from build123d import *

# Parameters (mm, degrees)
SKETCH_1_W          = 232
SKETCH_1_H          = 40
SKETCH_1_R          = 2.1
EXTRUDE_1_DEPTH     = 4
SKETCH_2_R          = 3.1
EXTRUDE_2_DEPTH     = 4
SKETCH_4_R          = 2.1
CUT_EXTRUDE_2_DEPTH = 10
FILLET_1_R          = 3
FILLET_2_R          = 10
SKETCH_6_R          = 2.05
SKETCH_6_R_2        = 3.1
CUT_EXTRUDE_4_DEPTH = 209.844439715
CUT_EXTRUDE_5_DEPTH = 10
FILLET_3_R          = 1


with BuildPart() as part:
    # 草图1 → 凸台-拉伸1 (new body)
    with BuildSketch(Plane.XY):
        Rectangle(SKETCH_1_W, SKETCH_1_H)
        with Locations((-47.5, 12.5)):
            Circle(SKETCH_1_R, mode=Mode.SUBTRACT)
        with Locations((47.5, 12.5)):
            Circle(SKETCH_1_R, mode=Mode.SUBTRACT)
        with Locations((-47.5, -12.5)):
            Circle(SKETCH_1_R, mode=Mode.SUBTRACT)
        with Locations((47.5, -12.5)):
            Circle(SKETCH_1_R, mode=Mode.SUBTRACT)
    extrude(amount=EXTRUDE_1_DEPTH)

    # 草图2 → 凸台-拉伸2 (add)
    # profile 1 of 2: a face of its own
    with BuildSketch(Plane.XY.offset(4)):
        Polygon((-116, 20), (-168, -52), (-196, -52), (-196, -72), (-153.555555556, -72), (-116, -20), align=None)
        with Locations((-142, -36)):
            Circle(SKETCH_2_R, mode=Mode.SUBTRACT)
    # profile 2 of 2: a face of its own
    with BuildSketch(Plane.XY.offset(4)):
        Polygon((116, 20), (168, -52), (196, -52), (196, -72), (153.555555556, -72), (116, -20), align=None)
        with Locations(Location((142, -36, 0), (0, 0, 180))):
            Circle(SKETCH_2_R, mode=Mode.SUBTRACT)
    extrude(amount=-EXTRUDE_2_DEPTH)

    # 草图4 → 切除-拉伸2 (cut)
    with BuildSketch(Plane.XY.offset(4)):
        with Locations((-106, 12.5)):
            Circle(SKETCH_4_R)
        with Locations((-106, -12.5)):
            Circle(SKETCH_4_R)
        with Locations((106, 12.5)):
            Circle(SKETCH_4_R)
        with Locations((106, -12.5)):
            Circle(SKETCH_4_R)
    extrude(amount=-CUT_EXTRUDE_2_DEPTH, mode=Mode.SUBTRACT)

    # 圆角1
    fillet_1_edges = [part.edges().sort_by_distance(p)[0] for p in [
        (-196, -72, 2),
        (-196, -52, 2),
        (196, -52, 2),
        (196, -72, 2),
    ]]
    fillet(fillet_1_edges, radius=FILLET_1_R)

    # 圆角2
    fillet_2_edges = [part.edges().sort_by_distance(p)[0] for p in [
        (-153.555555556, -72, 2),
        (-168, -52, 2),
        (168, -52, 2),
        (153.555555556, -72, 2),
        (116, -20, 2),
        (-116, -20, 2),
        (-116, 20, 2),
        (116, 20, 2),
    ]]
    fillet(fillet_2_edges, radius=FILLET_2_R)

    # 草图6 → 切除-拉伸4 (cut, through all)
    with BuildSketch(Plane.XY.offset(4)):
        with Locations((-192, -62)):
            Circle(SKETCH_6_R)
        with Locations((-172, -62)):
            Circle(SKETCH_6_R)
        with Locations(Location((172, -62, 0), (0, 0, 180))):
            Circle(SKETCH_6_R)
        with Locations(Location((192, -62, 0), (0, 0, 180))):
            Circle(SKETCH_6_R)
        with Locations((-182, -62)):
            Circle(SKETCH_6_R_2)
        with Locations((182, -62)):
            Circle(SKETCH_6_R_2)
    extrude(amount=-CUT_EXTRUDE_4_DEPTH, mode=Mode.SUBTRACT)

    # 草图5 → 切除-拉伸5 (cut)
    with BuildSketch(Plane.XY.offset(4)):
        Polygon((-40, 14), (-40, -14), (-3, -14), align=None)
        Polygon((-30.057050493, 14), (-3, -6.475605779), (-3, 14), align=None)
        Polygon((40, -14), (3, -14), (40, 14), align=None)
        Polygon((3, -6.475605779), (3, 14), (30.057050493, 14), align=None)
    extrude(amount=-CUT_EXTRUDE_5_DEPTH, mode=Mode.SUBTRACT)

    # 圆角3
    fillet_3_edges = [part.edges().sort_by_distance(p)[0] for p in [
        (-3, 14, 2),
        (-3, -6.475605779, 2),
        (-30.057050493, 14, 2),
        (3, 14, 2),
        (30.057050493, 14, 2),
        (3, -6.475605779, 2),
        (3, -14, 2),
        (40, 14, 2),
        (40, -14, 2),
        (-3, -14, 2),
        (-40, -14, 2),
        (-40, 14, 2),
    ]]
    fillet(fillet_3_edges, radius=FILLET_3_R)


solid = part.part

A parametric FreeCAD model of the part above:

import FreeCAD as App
import Part
import Sketcher
from FreeCAD import Vector


def edges_at(feature, points):
    """Names of the edges that pass closest to the given points."""
    edges = feature.Shape.Edges
    near = lambda p: min(range(len(edges)), key=lambda i: edges[i].distToShape(Part.Vertex(*p))[0])
    return sorted({f"Edge{near(p) + 1}" for p in points})

doc = App.newDocument("Part")
params = doc.addObject("Spreadsheet::Sheet", "Params")
for row, (alias, value) in enumerate([
    ("sketch1_diameter", "4.2 mm"),
    ("sketch1_width", "232 mm"),
    ("sketch1_height", "40 mm"),
    ("pad1_length", "4 mm"),
    ("sketch2_diameter", "6.2 mm"),
    ("sketch2_width", "28 mm"),
    ("sketch2_height", "20 mm"),
    ("sketch2_height2", "40 mm"),
    ("pad2_length", "4 mm"),
    ("sketch3_diameter", "4.2 mm"),
    ("pocket1_length", "10 mm"),
    ("fillet_radius", "3 mm"),
    ("fillet2_radius", "10 mm"),
    ("sketch4_diameter", "4.1 mm"),
    ("sketch4_diameter2", "6.2 mm"),
    ("sketch5_width", "37 mm"),
    ("sketch5_height", "28 mm"),
    ("pocket3_length", "10 mm"),
    ("fillet3_radius", "1 mm"),
], start=1):
    params.set(f"A{row}", alias)
    params.set(f"B{row}", "=" + value)
    params.setAlias(f"B{row}", alias)

body = doc.addObject("PartDesign::Body", "Body")

# Sketch on XY plane
sketch1 = body.newObject("Sketcher::SketchObject", "Sketch")
sketch1.AttachmentSupport = (doc.getObject("XY_Plane"), [""])
sketch1.MapMode = "FlatFace"
sketch1.addGeometry(Part.LineSegment(Vector(-116, 20, 0), Vector(-116, -20, 0)), False)
sketch1.addGeometry(Part.LineSegment(Vector(-116, -20, 0), Vector(116, -20, 0)), False)
sketch1.addGeometry(Part.LineSegment(Vector(116, -20, 0), Vector(116, 20, 0)), False)
sketch1.addGeometry(Part.LineSegment(Vector(116, 20, 0), Vector(-116, 20, 0)), False)
sketch1.addGeometry(Part.Circle(Vector(-47.5, -12.5, 0), Vector(0, 0, 1), 2.1), False)
sketch1.addGeometry(Part.Circle(Vector(47.5, -12.5, 0), Vector(0, 0, 1), 2.1), False)
sketch1.addGeometry(Part.Circle(Vector(-47.5, 12.5, 0), Vector(0, 0, 1), 2.1), False)
sketch1.addGeometry(Part.Circle(Vector(47.5, 12.5, 0), Vector(0, 0, 1), 2.1), False)
sketch1.addConstraint(Sketcher.Constraint("Coincident", 0, 2, 1, 1))
sketch1.addConstraint(Sketcher.Constraint("Coincident", 1, 2, 2, 1))
sketch1.addConstraint(Sketcher.Constraint("Coincident", 2, 2, 3, 1))
sketch1.addConstraint(Sketcher.Constraint("Coincident", 3, 2, 0, 1))
sketch1.addConstraint(Sketcher.Constraint("Vertical", 0))
sketch1.addConstraint(Sketcher.Constraint("Horizontal", 1))
sketch1.addConstraint(Sketcher.Constraint("Vertical", 2))
sketch1.addConstraint(Sketcher.Constraint("Horizontal", 3))
sketch1.addConstraint(Sketcher.Constraint("Equal", 4, 5))
sketch1.addConstraint(Sketcher.Constraint("Equal", 5, 6))
sketch1.addConstraint(Sketcher.Constraint("Equal", 6, 7))
sketch1.addConstraint(Sketcher.Constraint("Symmetric", 5, 3, 6, 3, -1, 1))
sketch1.addConstraint(Sketcher.Constraint("Symmetric", 4, 3, 7, 3, -1, 1))
sketch1.addConstraint(Sketcher.Constraint("Symmetric", 0, 2, 2, 2, -1, 1))
sketch1.addConstraint(Sketcher.Constraint("Symmetric", 4, 3, 5, 3, -2))
sketch1.addConstraint(Sketcher.Constraint("Diameter", 4, 4.2))
sketch1.addConstraint(Sketcher.Constraint("DistanceX", 1, 1, 1, 2, 232.0))
sketch1.addConstraint(Sketcher.Constraint("DistanceY", 0, 2, 0, 1, 40.0))
sketch1.addConstraint(Sketcher.Constraint("DistanceX", 4, 3, 5, 3, 95.0))
sketch1.addConstraint(Sketcher.Constraint("DistanceY", 4, 3, 6, 3, 25.0))
sketch1.setExpression("Constraints[15]", "Params.sketch1_diameter")
sketch1.setExpression("Constraints[16]", "Params.sketch1_width")
sketch1.setExpression("Constraints[17]", "Params.sketch1_height")
pad1 = body.newObject("PartDesign::Pad", "Pad")
pad1.Profile = sketch1
pad1.setExpression("Length", "Params.pad1_length")

# Sketch on XY plane
sketch2 = body.newObject("Sketcher::SketchObject", "Sketch001")
sketch2.AttachmentSupport = (doc.getObject("XY_Plane"), [""])
sketch2.MapMode = "FlatFace"
sketch2.AttachmentOffset = App.Placement(Vector(0, 0, 4), App.Rotation())
sketch2.addGeometry(Part.LineSegment(Vector(-116, 20, 0), Vector(-168, -52, 0)), False)
sketch2.addGeometry(Part.LineSegment(Vector(-168, -52, 0), Vector(-196, -52, 0)), False)
sketch2.addGeometry(Part.LineSegment(Vector(-196, -52, 0), Vector(-196, -72, 0)), False)
sketch2.addGeometry(Part.LineSegment(Vector(-196, -72, 0), Vector(-153.555556, -72, 0)), False)
sketch2.addGeometry(Part.LineSegment(Vector(-153.555556, -72, 0), Vector(-116, -20, 0)), False)
sketch2.addGeometry(Part.LineSegment(Vector(-116, -20, 0), Vector(-116, 20, 0)), False)
sketch2.addGeometry(Part.Circle(Vector(-142, -36, 0), Vector(0, 0, 1), 3.1), False)
sketch2.addGeometry(Part.LineSegment(Vector(168, -52, 0), Vector(116, 20, 0)), False)
sketch2.addGeometry(Part.LineSegment(Vector(116, 20, 0), Vector(116, -20, 0)), False)
sketch2.addGeometry(Part.LineSegment(Vector(116, -20, 0), Vector(153.555556, -72, 0)), False)
sketch2.addGeometry(Part.LineSegment(Vector(153.555556, -72, 0), Vector(196, -72, 0)), False)
sketch2.addGeometry(Part.LineSegment(Vector(196, -72, 0), Vector(196, -52, 0)), False)
sketch2.addGeometry(Part.LineSegment(Vector(196, -52, 0), Vector(168, -52, 0)), False)
sketch2.addGeometry(Part.Circle(Vector(142, -36, 0), Vector(0, 0, 1), 3.1), False)
sketch2.addConstraint(Sketcher.Constraint("Coincident", 0, 2, 1, 1))
sketch2.addConstraint(Sketcher.Constraint("Coincident", 1, 2, 2, 1))
sketch2.addConstraint(Sketcher.Constraint("Coincident", 2, 2, 3, 1))
sketch2.addConstraint(Sketcher.Constraint("Coincident", 3, 2, 4, 1))
sketch2.addConstraint(Sketcher.Constraint("Coincident", 4, 2, 5, 1))
sketch2.addConstraint(Sketcher.Constraint("Coincident", 5, 2, 0, 1))
sketch2.addConstraint(Sketcher.Constraint("Coincident", 7, 2, 8, 1))
sketch2.addConstraint(Sketcher.Constraint("Coincident", 8, 2, 9, 1))
sketch2.addConstraint(Sketcher.Constraint("Coincident", 9, 2, 10, 1))
sketch2.addConstraint(Sketcher.Constraint("Coincident", 10, 2, 11, 1))
sketch2.addConstraint(Sketcher.Constraint("Coincident", 11, 2, 12, 1))
sketch2.addConstraint(Sketcher.Constraint("Coincident", 12, 2, 7, 1))
sketch2.addConstraint(Sketcher.Constraint("Horizontal", 1))
sketch2.addConstraint(Sketcher.Constraint("Vertical", 2))
sketch2.addConstraint(Sketcher.Constraint("Horizontal", 3))
sketch2.addConstraint(Sketcher.Constraint("Vertical", 5))
sketch2.addConstraint(Sketcher.Constraint("Vertical", 8))
sketch2.addConstraint(Sketcher.Constraint("Horizontal", 10))
sketch2.addConstraint(Sketcher.Constraint("Vertical", 11))
sketch2.addConstraint(Sketcher.Constraint("Horizontal", 12))
sketch2.addConstraint(Sketcher.Constraint("Equal", 6, 13))
sketch2.addConstraint(Sketcher.Constraint("Symmetric", 4, 2, 7, 2, -1, 1))
sketch2.addConstraint(Sketcher.Constraint("Symmetric", 6, 3, 13, 3, -2))
sketch2.addConstraint(Sketcher.Constraint("Symmetric", 3, 2, 9, 2, -2))
sketch2.addConstraint(Sketcher.Constraint("Symmetric", 1, 2, 11, 2, -2))
sketch2.addConstraint(Sketcher.Constraint("Parallel", 0, 4))
sketch2.addConstraint(Sketcher.Constraint("Parallel", 7, 9))
sketch2.addConstraint(Sketcher.Constraint("Horizontal", 5, 2, 7, 2))
sketch2.addConstraint(Sketcher.Constraint("Horizontal", 4, 2, 8, 2))
sketch2.addConstraint(Sketcher.Constraint("Diameter", 6, 6.2))
sketch2.addConstraint(Sketcher.Constraint("DistanceX", 1, 2, 1, 1, 28.0))
sketch2.addConstraint(Sketcher.Constraint("DistanceY", 2, 2, 2, 1, 20.0))
sketch2.addConstraint(Sketcher.Constraint("DistanceY", 5, 1, 5, 2, 40.0))
sketch2.addConstraint(Sketcher.Constraint("DistanceX", 6, 3, -1, 1, 142.0))
sketch2.addConstraint(Sketcher.Constraint("DistanceY", 6, 3, -1, 1, 36.0))
sketch2.addConstraint(Sketcher.Constraint("DistanceX", 0, 2, -1, 1, 168.0))
sketch2.addConstraint(Sketcher.Constraint("DistanceY", 0, 2, -1, 1, 52.0))
sketch2.addConstraint(Sketcher.Constraint("DistanceX", 4, 2, -1, 1, 116.0))
sketch2.setExpression("Constraints[29]", "Params.sketch2_diameter")
sketch2.setExpression("Constraints[30]", "Params.sketch2_width")
sketch2.setExpression("Constraints[31]", "Params.sketch2_height")
sketch2.setExpression("Constraints[32]", "Params.sketch2_height2")
pad2 = body.newObject("PartDesign::Pad", "Pad001")
pad2.Profile = sketch2
pad2.setExpression("Length", "Params.pad2_length")
pad2.Reversed = True

# Sketch on XY plane
sketch3 = body.newObject("Sketcher::SketchObject", "Sketch002")
sketch3.AttachmentSupport = (doc.getObject("XY_Plane"), [""])
sketch3.MapMode = "FlatFace"
sketch3.AttachmentOffset = App.Placement(Vector(0, 0, 4), App.Rotation())
sketch3.addGeometry(Part.Circle(Vector(-106, 12.5, 0), Vector(0, 0, 1), 2.1), False)
sketch3.addGeometry(Part.Circle(Vector(-106, -12.5, 0), Vector(0, 0, 1), 2.1), False)
sketch3.addGeometry(Part.Circle(Vector(106, 12.5, 0), Vector(0, 0, 1), 2.1), False)
sketch3.addGeometry(Part.Circle(Vector(106, -12.5, 0), Vector(0, 0, 1), 2.1), False)
sketch3.addConstraint(Sketcher.Constraint("Equal", 0, 1))
sketch3.addConstraint(Sketcher.Constraint("Equal", 1, 2))
sketch3.addConstraint(Sketcher.Constraint("Equal", 2, 3))
sketch3.addConstraint(Sketcher.Constraint("Symmetric", 1, 3, 2, 3, -1, 1))
sketch3.addConstraint(Sketcher.Constraint("Symmetric", 0, 3, 3, 3, -1, 1))
sketch3.addConstraint(Sketcher.Constraint("Symmetric", 0, 3, 2, 3, -2))
sketch3.addConstraint(Sketcher.Constraint("Diameter", 0, 4.2))
sketch3.addConstraint(Sketcher.Constraint("DistanceX", 0, 3, -1, 1, 106.0))
sketch3.addConstraint(Sketcher.Constraint("DistanceY", 1, 3, 0, 3, 25.0))
sketch3.setExpression("Constraints[6]", "Params.sketch3_diameter")
pocket1 = body.newObject("PartDesign::Pocket", "Pocket")
pocket1.Profile = sketch3
pocket1.setExpression("Length", "Params.pocket1_length")
doc.recompute()

fillet = body.newObject("PartDesign::Fillet", "Fillet")
fillet.Base = (pocket1, edges_at(pocket1, [
    (-196, -72, 2),
    (-196, -52, 2),
    (196, -52, 2),
    (196, -72, 2),
]))
fillet.setExpression("Radius", "Params.fillet_radius")
doc.recompute()

fillet2 = body.newObject("PartDesign::Fillet", "Fillet001")
fillet2.Base = (fillet, edges_at(fillet, [
    (-153.556, -72, 2),
    (-168, -52, 2),
    (168, -52, 2),
    (153.556, -72, 2),
    (116, -20, 2),
    (-116, -20, 2),
    (-116, 20, 2),
    (116, 20, 2),
]))
fillet2.setExpression("Radius", "Params.fillet2_radius")

# Sketch on XY plane
sketch4 = body.newObject("Sketcher::SketchObject", "Sketch003")
sketch4.AttachmentSupport = (doc.getObject("XY_Plane"), [""])
sketch4.MapMode = "FlatFace"
sketch4.AttachmentOffset = App.Placement(Vector(0, 0, 4), App.Rotation())
sketch4.addGeometry(Part.Circle(Vector(-192, -62, 0), Vector(0, 0, 1), 2.05), False)
sketch4.addGeometry(Part.Circle(Vector(-172, -62, 0), Vector(0, 0, 1), 2.05), False)
sketch4.addGeometry(Part.Circle(Vector(172, -62, 0), Vector(0, 0, 1), 2.05), False)
sketch4.addGeometry(Part.Circle(Vector(192, -62, 0), Vector(0, 0, 1), 2.05), False)
sketch4.addGeometry(Part.Circle(Vector(-182, -62, 0), Vector(0, 0, 1), 3.1), False)
sketch4.addGeometry(Part.Circle(Vector(182, -62, 0), Vector(0, 0, 1), 3.1), False)
sketch4.addConstraint(Sketcher.Constraint("Equal", 0, 1))
sketch4.addConstraint(Sketcher.Constraint("Equal", 1, 2))
sketch4.addConstraint(Sketcher.Constraint("Equal", 2, 3))
sketch4.addConstraint(Sketcher.Constraint("Equal", 4, 5))
sketch4.addConstraint(Sketcher.Constraint("Symmetric", 1, 3, 2, 3, -2))
sketch4.addConstraint(Sketcher.Constraint("Symmetric", 0, 3, 3, 3, -2))
sketch4.addConstraint(Sketcher.Constraint("Symmetric", 4, 3, 5, 3, -2))
sketch4.addConstraint(Sketcher.Constraint("Horizontal", 0, 3, 1, 3))
sketch4.addConstraint(Sketcher.Constraint("Horizontal", 3, 3, 4, 3))
sketch4.addConstraint(Sketcher.Constraint("Diameter", 0, 4.1))
sketch4.addConstraint(Sketcher.Constraint("Diameter", 4, 6.2))
sketch4.addConstraint(Sketcher.Constraint("DistanceX", 0, 3, -1, 1, 192.0))
sketch4.addConstraint(Sketcher.Constraint("DistanceY", 0, 3, -1, 1, 62.0))
sketch4.addConstraint(Sketcher.Constraint("DistanceX", 1, 3, -1, 1, 172.0))
sketch4.addConstraint(Sketcher.Constraint("DistanceX", 4, 3, -1, 1, 182.0))
sketch4.setExpression("Constraints[9]", "Params.sketch4_diameter")
sketch4.setExpression("Constraints[10]", "Params.sketch4_diameter2")
pocket2 = body.newObject("PartDesign::Pocket", "Pocket001")
pocket2.Profile = sketch4
pocket2.Type = "ThroughAll"

# Sketch on XY plane
sketch5 = body.newObject("Sketcher::SketchObject", "Sketch004")
sketch5.AttachmentSupport = (doc.getObject("XY_Plane"), [""])
sketch5.MapMode = "FlatFace"
sketch5.AttachmentOffset = App.Placement(Vector(0, 0, 4), App.Rotation())
sketch5.addGeometry(Part.LineSegment(Vector(-40, 14, 0), Vector(-40, -14, 0)), False)
sketch5.addGeometry(Part.LineSegment(Vector(-40, -14, 0), Vector(-3, -14, 0)), False)
sketch5.addGeometry(Part.LineSegment(Vector(-3, -14, 0), Vector(-40, 14, 0)), False)
sketch5.addGeometry(Part.LineSegment(Vector(-30.05705, 14, 0), Vector(-3, -6.475606, 0)), False)
sketch5.addGeometry(Part.LineSegment(Vector(-3, -6.475606, 0), Vector(-3, 14, 0)), False)
sketch5.addGeometry(Part.LineSegment(Vector(-3, 14, 0), Vector(-30.05705, 14, 0)), False)
sketch5.addGeometry(Part.LineSegment(Vector(3, -14, 0), Vector(40, -14, 0)), False)
sketch5.addGeometry(Part.LineSegment(Vector(40, -14, 0), Vector(40, 14, 0)), False)
sketch5.addGeometry(Part.LineSegment(Vector(40, 14, 0), Vector(3, -14, 0)), False)
sketch5.addGeometry(Part.LineSegment(Vector(3, 14, 0), Vector(3, -6.475606, 0)), False)
sketch5.addGeometry(Part.LineSegment(Vector(3, -6.475606, 0), Vector(30.05705, 14, 0)), False)
sketch5.addGeometry(Part.LineSegment(Vector(30.05705, 14, 0), Vector(3, 14, 0)), False)
sketch5.addConstraint(Sketcher.Constraint("Coincident", 0, 2, 1, 1))
sketch5.addConstraint(Sketcher.Constraint("Coincident", 1, 2, 2, 1))
sketch5.addConstraint(Sketcher.Constraint("Coincident", 2, 2, 0, 1))
sketch5.addConstraint(Sketcher.Constraint("Coincident", 3, 2, 4, 1))
sketch5.addConstraint(Sketcher.Constraint("Coincident", 4, 2, 5, 1))
sketch5.addConstraint(Sketcher.Constraint("Coincident", 5, 2, 3, 1))
sketch5.addConstraint(Sketcher.Constraint("Coincident", 6, 2, 7, 1))
sketch5.addConstraint(Sketcher.Constraint("Coincident", 7, 2, 8, 1))
sketch5.addConstraint(Sketcher.Constraint("Coincident", 8, 2, 6, 1))
sketch5.addConstraint(Sketcher.Constraint("Coincident", 9, 2, 10, 1))
sketch5.addConstraint(Sketcher.Constraint("Coincident", 10, 2, 11, 1))
sketch5.addConstraint(Sketcher.Constraint("Coincident", 11, 2, 9, 1))
sketch5.addConstraint(Sketcher.Constraint("Vertical", 0))
sketch5.addConstraint(Sketcher.Constraint("Horizontal", 1))
sketch5.addConstraint(Sketcher.Constraint("Vertical", 4))
sketch5.addConstraint(Sketcher.Constraint("Horizontal", 5))
sketch5.addConstraint(Sketcher.Constraint("Horizontal", 6))
sketch5.addConstraint(Sketcher.Constraint("Vertical", 7))
sketch5.addConstraint(Sketcher.Constraint("Vertical", 9))
sketch5.addConstraint(Sketcher.Constraint("Horizontal", 11))
sketch5.addConstraint(Sketcher.Constraint("Symmetric", 2, 2, 6, 2, -1, 1))
sketch5.addConstraint(Sketcher.Constraint("Symmetric", 4, 2, 8, 2, -1, 1))
sketch5.addConstraint(Sketcher.Constraint("Symmetric", 1, 2, 11, 2, -1, 1))
sketch5.addConstraint(Sketcher.Constraint("Symmetric", 1, 2, 8, 2, -2))
sketch5.addConstraint(Sketcher.Constraint("Parallel", 2, 3))
sketch5.addConstraint(Sketcher.Constraint("Parallel", 8, 10))
sketch5.addConstraint(Sketcher.Constraint("Horizontal", 5, 2, 7, 2))
sketch5.addConstraint(Sketcher.Constraint("Horizontal", 3, 2, 9, 2))
sketch5.addConstraint(Sketcher.Constraint("DistanceX", 1, 1, 1, 2, 37.0))
sketch5.addConstraint(Sketcher.Constraint("DistanceY", 0, 2, 0, 1, 28.0))
sketch5.addConstraint(Sketcher.Constraint("DistanceX", 0, 2, -1, 1, 40.0))
sketch5.addConstraint(Sketcher.Constraint("DistanceX", 5, 2, 5, 1, 27.05705))
sketch5.setExpression("Constraints[28]", "Params.sketch5_width")
sketch5.setExpression("Constraints[29]", "Params.sketch5_height")
pocket3 = body.newObject("PartDesign::Pocket", "Pocket002")
pocket3.Profile = sketch5
pocket3.setExpression("Length", "Params.pocket3_length")
doc.recompute()

fillet3 = body.newObject("PartDesign::Fillet", "Fillet002")
fillet3.Base = (pocket3, edges_at(pocket3, [
    (-3, 14, 2),
    (-3, -6.476, 2),
    (-30.057, 14, 2),
    (3, 14, 2),
    (30.057, 14, 2),
    (3, -6.476, 2),
    (3, -14, 2),
    (40, 14, 2),
    (40, -14, 2),
    (-3, -14, 2),
    (-40, -14, 2),
    (-40, 14, 2),
]))
fillet3.setExpression("Radius", "Params.fillet3_radius")

doc.recompute()
